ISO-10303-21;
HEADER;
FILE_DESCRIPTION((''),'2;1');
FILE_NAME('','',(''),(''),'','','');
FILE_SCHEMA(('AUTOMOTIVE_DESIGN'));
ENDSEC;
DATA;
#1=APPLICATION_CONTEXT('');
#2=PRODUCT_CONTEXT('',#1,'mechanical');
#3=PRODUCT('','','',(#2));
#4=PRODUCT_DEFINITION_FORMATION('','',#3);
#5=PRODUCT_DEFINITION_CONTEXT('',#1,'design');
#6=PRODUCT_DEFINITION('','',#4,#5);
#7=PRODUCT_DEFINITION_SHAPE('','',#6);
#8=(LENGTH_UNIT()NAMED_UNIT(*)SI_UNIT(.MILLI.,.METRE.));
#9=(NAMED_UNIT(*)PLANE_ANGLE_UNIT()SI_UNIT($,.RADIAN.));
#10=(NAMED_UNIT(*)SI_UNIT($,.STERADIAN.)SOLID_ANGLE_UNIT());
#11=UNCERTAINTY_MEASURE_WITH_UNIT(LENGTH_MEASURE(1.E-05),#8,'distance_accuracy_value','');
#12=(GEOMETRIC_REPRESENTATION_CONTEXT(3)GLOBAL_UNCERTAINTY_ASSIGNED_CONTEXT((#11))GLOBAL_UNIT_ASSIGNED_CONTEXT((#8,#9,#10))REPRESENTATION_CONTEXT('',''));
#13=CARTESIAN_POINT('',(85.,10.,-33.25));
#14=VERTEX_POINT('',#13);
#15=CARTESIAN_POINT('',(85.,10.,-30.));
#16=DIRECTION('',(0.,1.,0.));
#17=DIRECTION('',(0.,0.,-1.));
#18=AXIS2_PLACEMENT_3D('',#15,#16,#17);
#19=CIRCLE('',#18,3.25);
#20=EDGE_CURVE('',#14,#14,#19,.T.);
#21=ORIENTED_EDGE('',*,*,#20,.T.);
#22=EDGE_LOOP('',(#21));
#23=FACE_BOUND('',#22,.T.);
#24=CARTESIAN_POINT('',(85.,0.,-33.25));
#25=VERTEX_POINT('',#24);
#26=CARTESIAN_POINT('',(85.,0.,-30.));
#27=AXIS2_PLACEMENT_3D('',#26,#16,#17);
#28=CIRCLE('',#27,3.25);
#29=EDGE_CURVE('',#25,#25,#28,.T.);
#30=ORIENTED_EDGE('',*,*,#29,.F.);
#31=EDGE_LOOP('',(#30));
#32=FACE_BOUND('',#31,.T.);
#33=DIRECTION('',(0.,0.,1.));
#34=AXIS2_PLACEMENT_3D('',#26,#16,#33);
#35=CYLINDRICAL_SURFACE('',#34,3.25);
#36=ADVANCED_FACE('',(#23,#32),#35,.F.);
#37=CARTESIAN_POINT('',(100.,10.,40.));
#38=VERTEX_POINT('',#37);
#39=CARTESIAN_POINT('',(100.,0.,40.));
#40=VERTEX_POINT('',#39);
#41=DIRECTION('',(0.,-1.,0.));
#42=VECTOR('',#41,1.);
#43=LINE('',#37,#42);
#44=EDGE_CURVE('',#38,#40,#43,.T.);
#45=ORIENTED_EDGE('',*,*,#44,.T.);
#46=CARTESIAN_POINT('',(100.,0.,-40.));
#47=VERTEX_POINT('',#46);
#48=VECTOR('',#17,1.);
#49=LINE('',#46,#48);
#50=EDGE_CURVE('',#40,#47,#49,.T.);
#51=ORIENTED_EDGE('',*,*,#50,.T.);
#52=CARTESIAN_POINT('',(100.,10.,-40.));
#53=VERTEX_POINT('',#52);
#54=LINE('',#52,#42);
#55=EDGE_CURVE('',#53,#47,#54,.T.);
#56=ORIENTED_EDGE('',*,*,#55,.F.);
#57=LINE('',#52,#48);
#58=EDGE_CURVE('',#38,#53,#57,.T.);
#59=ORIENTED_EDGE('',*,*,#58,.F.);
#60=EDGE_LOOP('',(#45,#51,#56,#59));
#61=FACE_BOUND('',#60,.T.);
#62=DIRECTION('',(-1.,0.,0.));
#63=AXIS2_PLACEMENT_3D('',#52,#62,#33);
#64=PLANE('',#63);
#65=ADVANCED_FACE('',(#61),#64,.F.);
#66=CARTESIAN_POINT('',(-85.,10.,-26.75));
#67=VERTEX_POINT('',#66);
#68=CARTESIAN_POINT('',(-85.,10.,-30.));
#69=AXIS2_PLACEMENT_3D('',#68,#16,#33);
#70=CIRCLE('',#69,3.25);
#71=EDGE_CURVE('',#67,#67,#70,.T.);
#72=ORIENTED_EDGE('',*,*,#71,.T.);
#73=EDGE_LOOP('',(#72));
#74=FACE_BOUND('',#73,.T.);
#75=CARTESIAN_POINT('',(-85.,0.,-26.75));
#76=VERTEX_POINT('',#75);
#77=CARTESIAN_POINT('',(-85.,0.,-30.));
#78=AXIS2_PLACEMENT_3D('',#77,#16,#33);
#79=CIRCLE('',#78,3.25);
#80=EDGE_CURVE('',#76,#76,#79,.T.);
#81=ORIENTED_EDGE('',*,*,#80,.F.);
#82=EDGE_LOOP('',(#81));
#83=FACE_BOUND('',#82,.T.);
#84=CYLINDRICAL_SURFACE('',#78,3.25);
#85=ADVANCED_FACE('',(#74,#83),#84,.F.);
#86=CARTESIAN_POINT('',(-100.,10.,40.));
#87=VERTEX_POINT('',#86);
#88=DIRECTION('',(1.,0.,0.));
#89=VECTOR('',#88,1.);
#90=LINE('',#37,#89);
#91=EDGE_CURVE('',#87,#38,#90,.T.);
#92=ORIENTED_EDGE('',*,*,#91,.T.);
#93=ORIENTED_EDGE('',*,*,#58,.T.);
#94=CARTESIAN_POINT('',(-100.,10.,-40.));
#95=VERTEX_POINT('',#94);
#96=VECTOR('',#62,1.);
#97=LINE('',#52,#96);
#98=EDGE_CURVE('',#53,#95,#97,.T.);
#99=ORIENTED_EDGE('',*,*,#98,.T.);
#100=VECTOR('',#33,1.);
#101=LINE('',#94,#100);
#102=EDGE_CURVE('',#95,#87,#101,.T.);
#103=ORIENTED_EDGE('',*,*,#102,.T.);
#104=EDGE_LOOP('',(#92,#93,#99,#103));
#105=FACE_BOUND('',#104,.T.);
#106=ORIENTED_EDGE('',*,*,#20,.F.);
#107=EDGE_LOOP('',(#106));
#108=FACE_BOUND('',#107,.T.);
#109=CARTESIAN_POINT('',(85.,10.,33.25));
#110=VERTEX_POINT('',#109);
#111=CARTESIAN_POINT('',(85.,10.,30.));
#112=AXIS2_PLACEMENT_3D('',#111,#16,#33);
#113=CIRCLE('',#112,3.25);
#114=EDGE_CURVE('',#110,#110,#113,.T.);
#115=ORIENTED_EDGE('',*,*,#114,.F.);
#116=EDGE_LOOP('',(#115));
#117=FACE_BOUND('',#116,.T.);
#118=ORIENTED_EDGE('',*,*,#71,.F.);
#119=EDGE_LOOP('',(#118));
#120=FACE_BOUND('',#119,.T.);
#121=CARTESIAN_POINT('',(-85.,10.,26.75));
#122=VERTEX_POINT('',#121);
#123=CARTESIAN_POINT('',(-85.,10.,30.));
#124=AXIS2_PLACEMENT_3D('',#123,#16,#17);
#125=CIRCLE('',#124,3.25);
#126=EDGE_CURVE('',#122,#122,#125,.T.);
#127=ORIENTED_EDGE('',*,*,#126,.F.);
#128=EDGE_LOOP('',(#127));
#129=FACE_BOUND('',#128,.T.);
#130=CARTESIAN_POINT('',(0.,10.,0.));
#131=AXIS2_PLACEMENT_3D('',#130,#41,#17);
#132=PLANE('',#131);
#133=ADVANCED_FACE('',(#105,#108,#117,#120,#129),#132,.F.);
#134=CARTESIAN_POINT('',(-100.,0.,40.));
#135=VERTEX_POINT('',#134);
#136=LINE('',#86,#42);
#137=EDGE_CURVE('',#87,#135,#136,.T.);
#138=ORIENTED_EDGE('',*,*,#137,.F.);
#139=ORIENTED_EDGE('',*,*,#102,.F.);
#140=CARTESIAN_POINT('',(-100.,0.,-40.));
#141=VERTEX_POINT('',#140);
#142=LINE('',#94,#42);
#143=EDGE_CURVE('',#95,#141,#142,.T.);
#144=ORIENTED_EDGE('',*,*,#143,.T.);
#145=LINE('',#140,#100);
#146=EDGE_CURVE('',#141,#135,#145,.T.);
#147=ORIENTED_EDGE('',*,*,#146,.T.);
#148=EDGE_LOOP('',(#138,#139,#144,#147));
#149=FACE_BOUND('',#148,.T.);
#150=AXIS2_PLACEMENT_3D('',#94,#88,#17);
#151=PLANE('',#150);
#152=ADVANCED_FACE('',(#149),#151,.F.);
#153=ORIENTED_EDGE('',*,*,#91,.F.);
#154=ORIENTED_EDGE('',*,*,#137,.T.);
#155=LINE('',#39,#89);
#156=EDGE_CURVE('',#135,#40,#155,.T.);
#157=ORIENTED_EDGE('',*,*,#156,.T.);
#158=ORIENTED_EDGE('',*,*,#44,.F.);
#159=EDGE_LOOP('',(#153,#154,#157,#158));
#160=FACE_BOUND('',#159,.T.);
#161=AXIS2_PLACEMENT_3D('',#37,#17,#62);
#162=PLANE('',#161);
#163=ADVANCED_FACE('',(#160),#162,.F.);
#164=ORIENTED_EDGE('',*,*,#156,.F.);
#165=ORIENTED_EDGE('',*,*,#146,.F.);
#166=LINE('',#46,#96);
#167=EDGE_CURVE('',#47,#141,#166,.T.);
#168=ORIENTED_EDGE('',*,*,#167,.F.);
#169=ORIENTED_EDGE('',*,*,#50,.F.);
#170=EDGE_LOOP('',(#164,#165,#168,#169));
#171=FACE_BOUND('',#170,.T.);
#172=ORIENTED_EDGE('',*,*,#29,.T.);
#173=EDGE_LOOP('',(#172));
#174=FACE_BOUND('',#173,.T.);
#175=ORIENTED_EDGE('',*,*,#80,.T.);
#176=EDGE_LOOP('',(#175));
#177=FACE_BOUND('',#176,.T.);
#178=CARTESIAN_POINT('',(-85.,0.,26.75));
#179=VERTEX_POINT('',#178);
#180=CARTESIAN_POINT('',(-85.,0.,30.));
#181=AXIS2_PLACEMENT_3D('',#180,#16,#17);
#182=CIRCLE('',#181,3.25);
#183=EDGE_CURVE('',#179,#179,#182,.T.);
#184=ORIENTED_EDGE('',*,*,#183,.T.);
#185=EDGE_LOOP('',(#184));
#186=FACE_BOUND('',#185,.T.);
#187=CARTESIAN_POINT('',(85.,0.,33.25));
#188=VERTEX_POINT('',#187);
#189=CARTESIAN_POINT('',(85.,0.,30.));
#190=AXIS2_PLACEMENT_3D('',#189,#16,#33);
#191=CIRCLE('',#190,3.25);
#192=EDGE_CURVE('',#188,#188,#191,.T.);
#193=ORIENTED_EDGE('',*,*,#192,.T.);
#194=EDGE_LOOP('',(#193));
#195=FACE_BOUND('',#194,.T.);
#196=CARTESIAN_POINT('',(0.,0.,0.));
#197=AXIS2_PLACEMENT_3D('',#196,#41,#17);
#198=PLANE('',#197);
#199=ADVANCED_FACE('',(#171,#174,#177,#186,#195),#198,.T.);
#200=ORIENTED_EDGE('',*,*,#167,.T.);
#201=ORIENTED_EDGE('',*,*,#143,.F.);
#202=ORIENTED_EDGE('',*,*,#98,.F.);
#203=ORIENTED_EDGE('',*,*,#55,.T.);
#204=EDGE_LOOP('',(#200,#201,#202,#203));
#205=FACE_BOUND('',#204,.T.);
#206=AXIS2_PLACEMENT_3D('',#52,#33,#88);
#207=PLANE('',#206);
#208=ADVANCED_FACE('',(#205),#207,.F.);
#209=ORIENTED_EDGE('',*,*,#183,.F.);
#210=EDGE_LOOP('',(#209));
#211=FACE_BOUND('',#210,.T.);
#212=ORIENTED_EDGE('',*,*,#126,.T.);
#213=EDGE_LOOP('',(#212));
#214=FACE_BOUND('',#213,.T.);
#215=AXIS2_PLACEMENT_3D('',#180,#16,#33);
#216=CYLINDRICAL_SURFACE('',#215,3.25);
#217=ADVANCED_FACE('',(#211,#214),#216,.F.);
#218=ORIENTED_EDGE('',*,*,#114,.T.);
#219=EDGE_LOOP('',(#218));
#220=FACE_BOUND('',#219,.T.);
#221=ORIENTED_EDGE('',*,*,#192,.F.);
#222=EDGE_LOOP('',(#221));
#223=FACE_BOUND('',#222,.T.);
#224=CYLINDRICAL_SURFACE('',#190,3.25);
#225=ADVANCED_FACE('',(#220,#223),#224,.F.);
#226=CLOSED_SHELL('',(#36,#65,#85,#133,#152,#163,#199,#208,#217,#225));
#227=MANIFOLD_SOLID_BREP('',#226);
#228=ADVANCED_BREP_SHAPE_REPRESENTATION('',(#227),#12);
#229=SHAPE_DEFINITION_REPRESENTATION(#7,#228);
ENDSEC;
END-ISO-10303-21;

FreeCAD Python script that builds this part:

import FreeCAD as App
import Part
import Sketcher

V = App.Vector


def add_polygon(sketch, points):
    """Adds a closed chain of lines whose ends are joined by coincident constraints."""
    first, n = sketch.GeometryCount, len(points)
    for a, b in zip(points, points[1:] + points[:1]):
        sketch.addGeometry(Part.LineSegment(App.Vector(*a, 0), App.Vector(*b, 0)), False)
    for i in range(n):
        sketch.addConstraint(Sketcher.Constraint("Coincident", first + i, 2, first + (i + 1) % n, 1))

doc = App.newDocument("Part")
body = doc.addObject("PartDesign::Body", "Body")

# Sketch on XZ plane
sketch1 = body.newObject("Sketcher::SketchObject", "Sketch")
sketch1.AttachmentSupport = (doc.getObject("XZ_Plane"), [""])
sketch1.MapMode = "FlatFace"
add_polygon(sketch1, [(-100, -40), (-100, 40), (100, 40), (100, -40)])  # lines 0-3
sketch1.addConstraint(Sketcher.Constraint("Vertical", 0))
sketch1.addConstraint(Sketcher.Constraint("Horizontal", 1))
sketch1.addConstraint(Sketcher.Constraint("Vertical", 2))
sketch1.addConstraint(Sketcher.Constraint("Horizontal", 3))
sketch1.addConstraint(Sketcher.Constraint("Symmetric", 0, 2, 2, 2, -1, 1))
sketch1.addConstraint(Sketcher.Constraint("DistanceX", 1, 1, 1, 2, 200.0))
sketch1.addConstraint(Sketcher.Constraint("DistanceY", 0, 1, 0, 2, 80.0))
pad1 = body.newObject("PartDesign::Pad", "Pad")
pad1.Profile = sketch1
pad1.Length = 10
pad1.Reversed = True

# Sketch on XZ plane
sketch2 = body.newObject("Sketcher::SketchObject", "Sketch001")
sketch2.AttachmentSupport = (doc.getObject("XZ_Plane"), [""])
sketch2.MapMode = "FlatFace"
sketch2.AttachmentOffset = App.Placement(V(0, 0, -10), App.Rotation())
sketch2.addGeometry(Part.Circle(V(-85, -30, 0), V(0, 0, 1), 3.25), False)
sketch2.addGeometry(Part.Circle(V(85, -30, 0), V(0, 0, 1), 3.25), False)
sketch2.addGeometry(Part.Circle(V(85, 30, 0), V(0, 0, 1), 3.25), False)
sketch2.addGeometry(Part.Circle(V(-85, 30, 0), V(0, 0, 1), 3.25), False)
sketch2.addConstraint(Sketcher.Constraint("Equal", 0, 1))
sketch2.addConstraint(Sketcher.Constraint("Equal", 1, 2))
sketch2.addConstraint(Sketcher.Constraint("Equal", 2, 3))
sketch2.addConstraint(Sketcher.Constraint("Symmetric", 0, 3, 2, 3, -1, 1))
sketch2.addConstraint(Sketcher.Constraint("Symmetric", 1, 3, 3, 3, -1, 1))
sketch2.addConstraint(Sketcher.Constraint("Symmetric", 0, 3, 1, 3, -2))
sketch2.addConstraint(Sketcher.Constraint("Diameter", 0, 6.5))
sketch2.addConstraint(Sketcher.Constraint("DistanceX", 0, 3, -1, 1, 85.0))
sketch2.addConstraint(Sketcher.Constraint("DistanceY", 0, 3, -1, 1, 30.0))
pocket1 = body.newObject("PartDesign::Pocket", "Pocket")
pocket1.Profile = sketch2
pocket1.Type = "ThroughAll"
pocket1.Reversed = True

doc.recompute()
